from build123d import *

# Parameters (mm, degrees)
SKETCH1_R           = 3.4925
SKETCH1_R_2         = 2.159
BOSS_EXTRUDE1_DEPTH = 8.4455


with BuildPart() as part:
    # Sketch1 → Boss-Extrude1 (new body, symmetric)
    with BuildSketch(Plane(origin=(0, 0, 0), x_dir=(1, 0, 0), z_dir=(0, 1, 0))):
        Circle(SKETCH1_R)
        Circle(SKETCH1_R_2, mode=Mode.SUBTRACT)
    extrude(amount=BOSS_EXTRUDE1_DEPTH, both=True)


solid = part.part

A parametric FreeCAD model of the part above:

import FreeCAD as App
import Part
import Sketcher

V = App.Vector
Q = App.Units.Quantity

doc = App.newDocument("Part")
params = doc.addObject("Spreadsheet::Sheet", "Params")
for row, (alias, value) in enumerate([
    ("sketch1_diameter", "0.17 in"),
    ("sketch1_diameter2", "0.275 in"),
    ("pad1_length", "0.665 in"),
], start=1):
    params.set(f"A{row}", alias)
    params.set(f"B{row}", "=" + value)
    params.setAlias(f"B{row}", alias)

body = doc.addObject("PartDesign::Body", "Body")

# Sketch on XZ plane
sketch1 = doc.addObject("Sketcher::SketchObject", "Sketch")
body.addObject(sketch1)
sketch1.AttachmentSupport = (doc.XZ_Plane, [""])
sketch1.MapMode = "FlatFace"
sketch1.addGeometry([
    Part.Circle(V(0, 0, 0), V(0, 0, 1), 3.5),
    Part.Circle(V(0, 0, 0), V(0, 0, 1), 2.2),
], False)
sketch1.addConstraint([
    Sketcher.Constraint("Coincident", 0, 3, -1, 1),
    Sketcher.Constraint("Coincident", 1, 3, -1, 1),
    Sketcher.Constraint("Diameter", 1, Q("0.17 in")),
    Sketcher.Constraint("Diameter", 0, Q("0.275 in")),
])
sketch1.setExpression("Constraints[2]", "Params.sketch1_diameter")
sketch1.setExpression("Constraints[3]", "Params.sketch1_diameter2")
pad1 = doc.addObject("PartDesign::Pad", "Pad")
body.addObject(pad1)
pad1.Profile = sketch1
pad1.setExpression("Length", "Params.pad1_length")
pad1.Midplane = True

doc.recompute()
